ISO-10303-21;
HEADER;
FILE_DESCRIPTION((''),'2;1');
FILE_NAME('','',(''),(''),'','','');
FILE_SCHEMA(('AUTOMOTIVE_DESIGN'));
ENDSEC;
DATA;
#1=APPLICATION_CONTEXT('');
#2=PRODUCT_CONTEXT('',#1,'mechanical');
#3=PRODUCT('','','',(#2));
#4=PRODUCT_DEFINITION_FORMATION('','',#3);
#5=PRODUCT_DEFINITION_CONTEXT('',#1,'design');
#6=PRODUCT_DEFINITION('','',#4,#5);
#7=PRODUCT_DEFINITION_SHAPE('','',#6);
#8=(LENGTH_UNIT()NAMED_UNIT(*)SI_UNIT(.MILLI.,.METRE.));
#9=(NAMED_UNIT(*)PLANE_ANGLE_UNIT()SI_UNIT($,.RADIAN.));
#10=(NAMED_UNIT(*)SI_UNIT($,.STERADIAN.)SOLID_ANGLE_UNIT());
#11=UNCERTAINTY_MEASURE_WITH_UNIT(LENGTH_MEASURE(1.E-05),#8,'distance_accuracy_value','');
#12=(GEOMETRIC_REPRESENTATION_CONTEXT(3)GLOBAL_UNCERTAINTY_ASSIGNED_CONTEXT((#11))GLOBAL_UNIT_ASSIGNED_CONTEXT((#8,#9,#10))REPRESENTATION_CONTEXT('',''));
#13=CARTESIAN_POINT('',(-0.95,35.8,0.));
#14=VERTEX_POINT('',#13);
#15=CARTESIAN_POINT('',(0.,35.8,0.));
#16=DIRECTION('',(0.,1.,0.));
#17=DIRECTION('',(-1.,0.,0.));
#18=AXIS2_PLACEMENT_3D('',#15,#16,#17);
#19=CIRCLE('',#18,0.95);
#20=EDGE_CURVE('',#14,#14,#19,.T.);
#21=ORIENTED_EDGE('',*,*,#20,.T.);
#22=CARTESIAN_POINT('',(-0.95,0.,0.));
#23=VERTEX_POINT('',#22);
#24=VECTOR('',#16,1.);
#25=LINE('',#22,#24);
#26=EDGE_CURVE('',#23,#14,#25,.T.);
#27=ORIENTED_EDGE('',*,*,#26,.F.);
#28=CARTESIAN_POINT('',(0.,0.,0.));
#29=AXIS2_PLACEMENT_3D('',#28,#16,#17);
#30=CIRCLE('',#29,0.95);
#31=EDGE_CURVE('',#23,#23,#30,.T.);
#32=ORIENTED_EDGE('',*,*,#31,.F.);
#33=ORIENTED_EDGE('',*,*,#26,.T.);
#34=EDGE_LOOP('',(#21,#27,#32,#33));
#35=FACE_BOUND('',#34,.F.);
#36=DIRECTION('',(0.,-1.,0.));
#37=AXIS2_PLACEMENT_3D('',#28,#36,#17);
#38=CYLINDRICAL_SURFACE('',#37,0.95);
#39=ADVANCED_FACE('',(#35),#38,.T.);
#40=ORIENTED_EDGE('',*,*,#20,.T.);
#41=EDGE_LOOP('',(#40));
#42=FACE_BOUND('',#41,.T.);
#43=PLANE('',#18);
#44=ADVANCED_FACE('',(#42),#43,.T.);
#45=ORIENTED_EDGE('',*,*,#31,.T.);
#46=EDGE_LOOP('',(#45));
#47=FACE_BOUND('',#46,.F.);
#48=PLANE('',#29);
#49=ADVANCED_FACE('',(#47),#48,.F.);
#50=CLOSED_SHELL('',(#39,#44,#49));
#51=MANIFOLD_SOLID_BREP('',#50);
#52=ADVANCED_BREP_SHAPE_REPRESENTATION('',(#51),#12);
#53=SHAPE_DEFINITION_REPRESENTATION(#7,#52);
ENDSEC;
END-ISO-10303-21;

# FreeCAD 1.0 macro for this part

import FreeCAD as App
import Part
import Sketcher
Q = App.Units.Quantity

doc = App.newDocument("Part")
body = doc.addObject("PartDesign::Body", "Body")

sketch1 = doc.addObject("Sketcher::SketchObject", "Sketch")
body.addObject(sketch1)
sketch1.AttachmentSupport = (doc.XZ_Plane, [""])
sketch1.MapMode = "FlatFace"
sketch1.addGeometry(Part.Circle(App.Vector(0, 0, 0), App.Vector(0, 0, 1), 0.95), False)
sketch1.addConstraint([
    Sketcher.Constraint("Coincident", 0, 3, -1, 1),
    Sketcher.Constraint("Diameter", 0, Q("1.9 mm")),
])
pad1 = doc.addObject("PartDesign::Pad", "Pad")
body.addObject(pad1)
pad1.Profile = sketch1
pad1.Length = 35.8
pad1.Reversed = True

doc.recompute()
